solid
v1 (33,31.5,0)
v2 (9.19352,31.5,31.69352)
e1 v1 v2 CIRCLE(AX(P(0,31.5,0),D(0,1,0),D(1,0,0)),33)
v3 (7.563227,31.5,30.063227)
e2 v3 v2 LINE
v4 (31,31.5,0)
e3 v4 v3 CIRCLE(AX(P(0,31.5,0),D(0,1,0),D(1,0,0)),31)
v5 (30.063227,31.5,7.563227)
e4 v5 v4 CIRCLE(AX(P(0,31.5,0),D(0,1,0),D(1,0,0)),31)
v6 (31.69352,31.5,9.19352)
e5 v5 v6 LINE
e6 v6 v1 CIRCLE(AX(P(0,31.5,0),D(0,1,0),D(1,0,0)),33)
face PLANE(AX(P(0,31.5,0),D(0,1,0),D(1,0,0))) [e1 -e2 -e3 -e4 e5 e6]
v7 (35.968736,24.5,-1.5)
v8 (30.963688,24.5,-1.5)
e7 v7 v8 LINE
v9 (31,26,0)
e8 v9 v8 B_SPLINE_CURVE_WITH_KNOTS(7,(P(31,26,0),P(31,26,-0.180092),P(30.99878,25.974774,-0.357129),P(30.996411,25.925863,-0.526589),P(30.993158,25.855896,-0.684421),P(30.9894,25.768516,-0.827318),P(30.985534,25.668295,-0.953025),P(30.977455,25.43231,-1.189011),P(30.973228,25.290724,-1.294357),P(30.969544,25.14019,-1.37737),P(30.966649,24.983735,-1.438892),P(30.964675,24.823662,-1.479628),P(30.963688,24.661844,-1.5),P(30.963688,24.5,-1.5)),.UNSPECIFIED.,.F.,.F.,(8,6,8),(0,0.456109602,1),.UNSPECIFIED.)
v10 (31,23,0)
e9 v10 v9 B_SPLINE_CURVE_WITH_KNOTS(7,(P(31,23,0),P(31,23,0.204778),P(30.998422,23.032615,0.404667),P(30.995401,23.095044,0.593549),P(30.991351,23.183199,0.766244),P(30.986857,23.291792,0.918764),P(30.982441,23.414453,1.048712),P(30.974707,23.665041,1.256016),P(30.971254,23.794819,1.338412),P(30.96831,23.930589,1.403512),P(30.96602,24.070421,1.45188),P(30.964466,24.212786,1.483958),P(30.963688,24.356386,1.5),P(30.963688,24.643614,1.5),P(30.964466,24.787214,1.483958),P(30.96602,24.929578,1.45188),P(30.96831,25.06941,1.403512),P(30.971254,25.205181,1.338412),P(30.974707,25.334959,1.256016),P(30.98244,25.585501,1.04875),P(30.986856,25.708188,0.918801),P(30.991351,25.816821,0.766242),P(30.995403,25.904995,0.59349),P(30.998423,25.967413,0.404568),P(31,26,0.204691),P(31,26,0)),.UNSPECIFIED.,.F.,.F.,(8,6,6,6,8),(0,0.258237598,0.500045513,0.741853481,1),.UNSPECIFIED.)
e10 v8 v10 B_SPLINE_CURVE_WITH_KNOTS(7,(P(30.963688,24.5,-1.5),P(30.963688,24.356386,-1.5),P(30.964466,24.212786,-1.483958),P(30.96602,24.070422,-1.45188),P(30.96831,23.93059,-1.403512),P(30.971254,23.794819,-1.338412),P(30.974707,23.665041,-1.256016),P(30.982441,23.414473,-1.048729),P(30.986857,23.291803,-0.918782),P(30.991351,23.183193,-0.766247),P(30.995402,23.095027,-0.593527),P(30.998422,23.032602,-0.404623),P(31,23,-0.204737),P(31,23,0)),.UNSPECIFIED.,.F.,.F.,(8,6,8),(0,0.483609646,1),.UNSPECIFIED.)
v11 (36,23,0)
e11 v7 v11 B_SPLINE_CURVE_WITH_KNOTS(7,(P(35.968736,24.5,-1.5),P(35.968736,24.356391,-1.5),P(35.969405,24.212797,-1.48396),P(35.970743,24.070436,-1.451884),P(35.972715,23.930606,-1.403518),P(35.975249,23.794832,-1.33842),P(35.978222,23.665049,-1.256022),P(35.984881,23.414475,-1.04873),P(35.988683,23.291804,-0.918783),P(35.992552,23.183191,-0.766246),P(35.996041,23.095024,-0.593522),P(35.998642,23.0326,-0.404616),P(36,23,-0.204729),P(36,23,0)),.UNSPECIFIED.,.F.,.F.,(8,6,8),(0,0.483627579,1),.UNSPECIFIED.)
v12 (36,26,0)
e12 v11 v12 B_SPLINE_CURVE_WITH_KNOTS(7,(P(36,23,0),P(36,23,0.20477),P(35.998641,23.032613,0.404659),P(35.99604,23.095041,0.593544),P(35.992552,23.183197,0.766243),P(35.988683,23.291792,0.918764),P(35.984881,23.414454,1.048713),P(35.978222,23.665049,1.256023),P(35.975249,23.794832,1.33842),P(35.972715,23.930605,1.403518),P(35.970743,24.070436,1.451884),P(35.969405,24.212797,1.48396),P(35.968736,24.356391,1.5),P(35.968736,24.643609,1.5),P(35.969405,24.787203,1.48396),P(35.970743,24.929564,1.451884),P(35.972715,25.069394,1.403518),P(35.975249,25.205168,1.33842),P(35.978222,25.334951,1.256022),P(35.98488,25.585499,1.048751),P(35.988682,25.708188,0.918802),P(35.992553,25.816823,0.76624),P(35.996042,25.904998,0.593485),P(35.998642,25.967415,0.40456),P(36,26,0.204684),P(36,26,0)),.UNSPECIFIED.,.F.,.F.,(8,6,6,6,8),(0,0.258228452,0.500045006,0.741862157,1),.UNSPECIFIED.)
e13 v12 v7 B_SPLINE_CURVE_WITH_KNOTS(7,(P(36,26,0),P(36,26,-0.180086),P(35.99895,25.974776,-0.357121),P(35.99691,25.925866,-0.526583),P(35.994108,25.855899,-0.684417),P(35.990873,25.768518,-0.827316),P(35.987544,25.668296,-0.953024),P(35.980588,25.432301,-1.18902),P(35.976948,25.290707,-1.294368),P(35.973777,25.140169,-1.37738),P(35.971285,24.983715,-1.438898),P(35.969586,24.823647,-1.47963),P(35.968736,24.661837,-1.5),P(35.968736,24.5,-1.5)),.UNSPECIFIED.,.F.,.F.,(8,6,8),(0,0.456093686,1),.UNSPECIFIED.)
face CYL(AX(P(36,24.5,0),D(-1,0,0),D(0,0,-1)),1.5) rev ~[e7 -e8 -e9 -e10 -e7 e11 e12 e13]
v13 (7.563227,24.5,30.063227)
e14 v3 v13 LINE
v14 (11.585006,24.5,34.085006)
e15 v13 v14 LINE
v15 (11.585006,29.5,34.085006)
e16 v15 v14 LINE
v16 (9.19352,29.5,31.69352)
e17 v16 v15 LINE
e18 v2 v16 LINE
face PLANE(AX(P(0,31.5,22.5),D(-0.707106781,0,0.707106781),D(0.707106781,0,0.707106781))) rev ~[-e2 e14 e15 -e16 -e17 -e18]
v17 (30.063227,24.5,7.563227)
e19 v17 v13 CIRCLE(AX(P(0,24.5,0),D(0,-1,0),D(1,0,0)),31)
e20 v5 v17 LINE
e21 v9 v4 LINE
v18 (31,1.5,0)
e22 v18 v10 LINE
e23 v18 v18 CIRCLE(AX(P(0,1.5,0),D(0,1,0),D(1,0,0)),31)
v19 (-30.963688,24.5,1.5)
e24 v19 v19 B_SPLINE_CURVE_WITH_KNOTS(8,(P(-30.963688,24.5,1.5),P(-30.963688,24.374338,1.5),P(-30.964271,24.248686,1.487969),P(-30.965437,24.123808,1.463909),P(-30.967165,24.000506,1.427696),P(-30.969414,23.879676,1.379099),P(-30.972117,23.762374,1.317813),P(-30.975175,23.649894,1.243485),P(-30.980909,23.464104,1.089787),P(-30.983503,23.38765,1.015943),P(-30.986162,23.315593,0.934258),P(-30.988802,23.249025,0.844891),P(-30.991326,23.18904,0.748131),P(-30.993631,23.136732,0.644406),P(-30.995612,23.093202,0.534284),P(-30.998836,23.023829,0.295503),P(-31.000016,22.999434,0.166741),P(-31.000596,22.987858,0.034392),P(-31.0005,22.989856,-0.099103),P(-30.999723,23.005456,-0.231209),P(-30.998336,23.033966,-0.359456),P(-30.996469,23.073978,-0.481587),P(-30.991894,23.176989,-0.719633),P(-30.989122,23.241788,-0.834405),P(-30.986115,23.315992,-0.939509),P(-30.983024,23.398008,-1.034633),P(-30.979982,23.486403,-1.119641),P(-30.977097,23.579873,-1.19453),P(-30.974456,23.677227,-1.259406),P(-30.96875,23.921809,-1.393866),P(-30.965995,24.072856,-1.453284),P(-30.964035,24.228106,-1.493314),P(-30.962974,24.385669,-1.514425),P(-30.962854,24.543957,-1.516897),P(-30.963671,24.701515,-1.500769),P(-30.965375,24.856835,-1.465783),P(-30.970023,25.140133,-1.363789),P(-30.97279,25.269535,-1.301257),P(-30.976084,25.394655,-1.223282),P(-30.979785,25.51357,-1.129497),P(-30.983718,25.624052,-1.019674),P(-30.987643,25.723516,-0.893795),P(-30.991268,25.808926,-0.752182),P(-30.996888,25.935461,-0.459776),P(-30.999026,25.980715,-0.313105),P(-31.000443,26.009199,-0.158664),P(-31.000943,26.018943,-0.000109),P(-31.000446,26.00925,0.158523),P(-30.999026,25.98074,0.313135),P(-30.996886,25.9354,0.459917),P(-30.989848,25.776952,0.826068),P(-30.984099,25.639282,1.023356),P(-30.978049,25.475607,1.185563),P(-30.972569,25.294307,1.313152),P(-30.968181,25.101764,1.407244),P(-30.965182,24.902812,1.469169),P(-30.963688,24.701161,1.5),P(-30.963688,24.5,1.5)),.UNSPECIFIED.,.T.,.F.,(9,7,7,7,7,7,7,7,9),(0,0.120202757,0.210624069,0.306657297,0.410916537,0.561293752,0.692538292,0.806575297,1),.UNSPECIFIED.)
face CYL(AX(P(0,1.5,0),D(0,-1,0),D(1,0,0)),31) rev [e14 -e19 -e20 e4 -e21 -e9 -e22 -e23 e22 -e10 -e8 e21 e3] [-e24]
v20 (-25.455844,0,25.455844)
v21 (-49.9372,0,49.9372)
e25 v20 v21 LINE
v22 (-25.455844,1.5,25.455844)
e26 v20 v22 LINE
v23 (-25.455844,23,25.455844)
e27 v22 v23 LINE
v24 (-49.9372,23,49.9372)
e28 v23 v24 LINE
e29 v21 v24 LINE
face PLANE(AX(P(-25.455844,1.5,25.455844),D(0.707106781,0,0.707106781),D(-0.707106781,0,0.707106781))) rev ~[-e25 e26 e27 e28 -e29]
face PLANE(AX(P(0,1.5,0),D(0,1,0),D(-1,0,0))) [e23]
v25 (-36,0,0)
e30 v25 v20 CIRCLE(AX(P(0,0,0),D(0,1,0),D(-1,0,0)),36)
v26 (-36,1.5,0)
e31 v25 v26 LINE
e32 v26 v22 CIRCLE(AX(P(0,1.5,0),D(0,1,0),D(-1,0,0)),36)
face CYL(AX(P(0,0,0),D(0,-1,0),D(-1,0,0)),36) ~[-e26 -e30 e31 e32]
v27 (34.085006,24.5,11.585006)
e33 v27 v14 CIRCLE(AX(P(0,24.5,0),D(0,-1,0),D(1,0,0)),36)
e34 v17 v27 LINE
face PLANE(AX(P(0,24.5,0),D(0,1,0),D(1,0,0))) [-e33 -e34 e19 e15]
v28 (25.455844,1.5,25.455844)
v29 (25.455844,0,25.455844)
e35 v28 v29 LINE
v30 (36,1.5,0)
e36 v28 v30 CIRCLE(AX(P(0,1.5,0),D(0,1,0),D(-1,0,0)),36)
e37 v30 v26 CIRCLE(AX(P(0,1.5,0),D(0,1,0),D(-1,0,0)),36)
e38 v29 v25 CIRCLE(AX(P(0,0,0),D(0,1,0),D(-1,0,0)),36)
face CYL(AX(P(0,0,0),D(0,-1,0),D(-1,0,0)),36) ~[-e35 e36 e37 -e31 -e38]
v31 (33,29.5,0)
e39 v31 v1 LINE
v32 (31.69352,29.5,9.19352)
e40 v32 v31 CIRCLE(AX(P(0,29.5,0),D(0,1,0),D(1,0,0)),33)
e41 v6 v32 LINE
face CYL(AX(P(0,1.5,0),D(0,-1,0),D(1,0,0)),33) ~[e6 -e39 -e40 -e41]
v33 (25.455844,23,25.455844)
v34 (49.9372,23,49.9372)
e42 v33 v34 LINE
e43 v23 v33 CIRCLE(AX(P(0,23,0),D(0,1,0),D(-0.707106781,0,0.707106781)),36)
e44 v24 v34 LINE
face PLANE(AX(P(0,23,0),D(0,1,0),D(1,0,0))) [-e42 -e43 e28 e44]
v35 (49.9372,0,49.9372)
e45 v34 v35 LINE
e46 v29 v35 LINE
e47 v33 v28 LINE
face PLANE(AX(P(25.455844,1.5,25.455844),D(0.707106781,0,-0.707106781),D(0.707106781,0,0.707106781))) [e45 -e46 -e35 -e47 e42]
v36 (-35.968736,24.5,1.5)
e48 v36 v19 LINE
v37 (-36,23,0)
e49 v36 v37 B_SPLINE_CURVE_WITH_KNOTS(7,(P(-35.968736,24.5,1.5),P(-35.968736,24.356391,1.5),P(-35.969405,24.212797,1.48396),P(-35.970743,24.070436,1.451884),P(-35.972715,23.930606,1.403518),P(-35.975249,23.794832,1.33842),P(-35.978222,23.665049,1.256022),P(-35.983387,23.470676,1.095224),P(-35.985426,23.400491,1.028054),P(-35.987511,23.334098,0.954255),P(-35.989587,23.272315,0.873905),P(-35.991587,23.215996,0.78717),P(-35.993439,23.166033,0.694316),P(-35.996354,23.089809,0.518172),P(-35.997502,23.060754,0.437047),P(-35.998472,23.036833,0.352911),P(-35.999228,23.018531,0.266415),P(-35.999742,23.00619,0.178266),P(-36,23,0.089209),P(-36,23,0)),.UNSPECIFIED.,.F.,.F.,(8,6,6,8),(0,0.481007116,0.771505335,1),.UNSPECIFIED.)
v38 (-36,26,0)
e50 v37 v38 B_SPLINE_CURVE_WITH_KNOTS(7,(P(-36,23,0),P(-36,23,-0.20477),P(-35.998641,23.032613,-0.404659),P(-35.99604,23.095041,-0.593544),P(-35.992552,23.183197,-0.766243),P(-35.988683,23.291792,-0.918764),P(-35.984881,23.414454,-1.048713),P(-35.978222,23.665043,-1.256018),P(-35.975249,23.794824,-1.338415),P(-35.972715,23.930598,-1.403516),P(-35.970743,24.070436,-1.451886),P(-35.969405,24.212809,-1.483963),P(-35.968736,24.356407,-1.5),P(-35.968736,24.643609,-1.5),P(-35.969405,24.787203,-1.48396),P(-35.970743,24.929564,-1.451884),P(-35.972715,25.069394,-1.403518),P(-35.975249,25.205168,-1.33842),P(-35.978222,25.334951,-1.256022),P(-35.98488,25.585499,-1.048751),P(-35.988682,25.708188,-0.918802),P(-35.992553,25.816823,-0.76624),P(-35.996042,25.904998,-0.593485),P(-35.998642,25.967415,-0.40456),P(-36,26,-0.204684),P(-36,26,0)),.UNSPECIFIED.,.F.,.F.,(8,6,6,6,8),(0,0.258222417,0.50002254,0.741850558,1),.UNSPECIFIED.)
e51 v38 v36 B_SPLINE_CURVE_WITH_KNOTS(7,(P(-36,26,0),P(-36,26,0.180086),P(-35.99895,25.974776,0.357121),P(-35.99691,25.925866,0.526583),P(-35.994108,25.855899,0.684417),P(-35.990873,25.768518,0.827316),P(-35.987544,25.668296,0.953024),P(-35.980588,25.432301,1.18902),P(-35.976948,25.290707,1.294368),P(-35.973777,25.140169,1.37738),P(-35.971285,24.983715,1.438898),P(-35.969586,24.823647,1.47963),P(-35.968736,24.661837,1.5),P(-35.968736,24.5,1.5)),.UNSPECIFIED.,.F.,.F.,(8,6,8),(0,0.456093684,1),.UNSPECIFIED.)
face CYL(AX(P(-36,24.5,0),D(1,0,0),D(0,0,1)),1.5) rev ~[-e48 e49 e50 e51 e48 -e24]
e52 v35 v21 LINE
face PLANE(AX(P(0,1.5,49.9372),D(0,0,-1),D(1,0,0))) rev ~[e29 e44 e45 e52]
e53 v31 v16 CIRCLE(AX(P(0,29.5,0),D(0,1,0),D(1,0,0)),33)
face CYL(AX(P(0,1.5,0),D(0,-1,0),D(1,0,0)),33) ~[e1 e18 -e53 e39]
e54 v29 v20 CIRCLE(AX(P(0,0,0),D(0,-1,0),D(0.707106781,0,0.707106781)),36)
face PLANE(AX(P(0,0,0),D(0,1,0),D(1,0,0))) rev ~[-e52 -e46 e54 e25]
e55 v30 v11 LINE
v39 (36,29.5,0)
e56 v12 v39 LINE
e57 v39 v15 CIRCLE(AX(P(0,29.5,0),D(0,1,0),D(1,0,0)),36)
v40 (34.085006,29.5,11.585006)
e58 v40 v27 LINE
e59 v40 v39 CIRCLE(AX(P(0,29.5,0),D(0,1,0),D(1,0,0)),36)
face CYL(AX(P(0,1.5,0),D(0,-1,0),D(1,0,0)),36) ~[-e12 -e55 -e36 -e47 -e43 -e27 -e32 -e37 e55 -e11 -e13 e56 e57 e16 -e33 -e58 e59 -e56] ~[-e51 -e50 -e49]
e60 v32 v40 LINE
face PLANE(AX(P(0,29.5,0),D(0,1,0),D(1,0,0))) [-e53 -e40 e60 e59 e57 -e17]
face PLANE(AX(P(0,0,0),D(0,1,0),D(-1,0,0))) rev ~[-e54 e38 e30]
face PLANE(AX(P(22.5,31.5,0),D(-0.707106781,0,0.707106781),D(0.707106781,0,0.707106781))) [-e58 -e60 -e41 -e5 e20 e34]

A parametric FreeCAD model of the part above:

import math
import FreeCAD as App
import Part
import Sketcher
from FreeCAD import Vector
Q = App.Units.Quantity

doc = App.newDocument("Part")
body = doc.addObject("PartDesign::Body", "Body")

sketch1 = doc.addObject("Sketcher::SketchObject", "Sketch")
body.addObject(sketch1)
sketch1.AttachmentSupport = (doc.XZ_Plane, [""])
sketch1.MapMode = "FlatFace"
sketch1.addGeometry(Part.Circle(Vector(0, 0, 0), Vector(0, 0, 1), 36), False)
sketch1.addConstraint([
    Sketcher.Constraint("Coincident", 0, 3, -1, 1),
    Sketcher.Constraint("Diameter", 0, 72.0),
])
pad1 = doc.addObject("PartDesign::Pad", "Pad")
body.addObject(pad1)
pad1.Profile = sketch1
pad1.Length = 1.5
pad1.Reversed = True

sketch2 = doc.addObject("Sketcher::SketchObject", "Sketch001")
body.addObject(sketch2)
sketch2.AttachmentSupport = (doc.XZ_Plane, [""])
sketch2.MapMode = "FlatFace"
sketch2.AttachmentOffset = App.Placement(Vector(0, 0, -1.5), App.Rotation())
sketch2.addGeometry([
    Part.Circle(Vector(0, 0, 0), Vector(0, 0, 1), 33),
    Part.Circle(Vector(0, 0, 0), Vector(0, 0, 1), 31),
], False)
sketch2.addConstraint([
    Sketcher.Constraint("Coincident", 0, 3, -1, 1),
    Sketcher.Constraint("Coincident", 1, 3, -1, 1),
    Sketcher.Constraint("Diameter", 0, 66.0),
    Sketcher.Constraint("Diameter", 1, 62.0),
])
pad2 = doc.addObject("PartDesign::Pad", "Pad001")
body.addObject(pad2)
pad2.Profile = sketch2
pad2.Length = 30
pad2.Reversed = True

sketch3 = doc.addObject("Sketcher::SketchObject", "Sketch002")
body.addObject(sketch3)
sketch3.AttachmentSupport = (doc.XZ_Plane, [""])
sketch3.MapMode = "FlatFace"
sketch3.AttachmentOffset = App.Placement(Vector(0, 0, -1.5), App.Rotation())
sketch3.addGeometry([
    Part.Circle(Vector(0, 0, 0), Vector(0, 0, 1), 36),
    Part.Circle(Vector(0, 0, 0), Vector(0, 0, 1), 33),
], False)
sketch3.addConstraint([
    Sketcher.Constraint("Coincident", 0, 3, -1, 1),
    Sketcher.Constraint("Coincident", 1, 3, -1, 1),
    Sketcher.Constraint("Diameter", 0, 72.0),
    Sketcher.Constraint("Diameter", 1, 66.0),
])
pad3 = doc.addObject("PartDesign::Pad", "Pad002")
body.addObject(pad3)
pad3.Profile = sketch3
pad3.Length = 28
pad3.Reversed = True

sketch4 = doc.addObject("Sketcher::SketchObject", "Sketch003")
body.addObject(sketch4)
sketch4.AttachmentSupport = (doc.XZ_Plane, [""])
sketch4.MapMode = "FlatFace"
sketch4.AttachmentOffset = App.Placement(Vector(0, 0, -31.5), App.Rotation())
sketch4.addGeometry([
    Part.LineSegment(Vector(47, 24, 0), Vector(22, 0, 0)),
    Part.LineSegment(Vector(22, 0, 0), Vector(0, 22, 0)),
    Part.LineSegment(Vector(0, 22, 0), Vector(19, 42, 0)),
    Part.LineSegment(Vector(19, 42, 0), Vector(47, 24, 0)),
], False)
sketch4.addConstraint([
    Sketcher.Constraint("Coincident", 0, 2, 1, 1),
    Sketcher.Constraint("Coincident", 1, 2, 2, 1),
    Sketcher.Constraint("Coincident", 2, 2, 3, 1),
    Sketcher.Constraint("Coincident", 3, 2, 0, 1),
    Sketcher.Constraint("PointOnObject", 0, 2, -1),
    Sketcher.Constraint("PointOnObject", 1, 2, -2),
    Sketcher.Constraint("Perpendicular", 0, 1),
    Sketcher.Constraint("Perpendicular", 1, 2),
    Sketcher.Constraint("Angle", 2, Q("45 deg")),
    Sketcher.Constraint("DistanceX", -1, 1, 0, 2, 22.5),
    Sketcher.Constraint("DistanceX", 2, 2, 3, 2, 27.374),
    Sketcher.Constraint("Distance", 0, 34.0509),
])
pocket1 = doc.addObject("PartDesign::Pocket", "Pocket")
body.addObject(pocket1)
pocket1.Profile = sketch4
pocket1.Length = 7
pocket1.Reversed = True

sketch5 = doc.addObject("Sketcher::SketchObject", "Sketch004")
body.addObject(sketch5)
sketch5.AttachmentSupport = (doc.YZ_Plane, [""])
sketch5.MapMode = "FlatFace"
sketch5.AttachmentOffset = App.Placement(Vector(0, 0, -36), App.Rotation())
sketch5.addGeometry(Part.Circle(Vector(24.5, 0, 0), Vector(0, 0, 1), 1.5), False)
sketch5.addConstraint([
    Sketcher.Constraint("PointOnObject", 0, 3, -1),
    Sketcher.Constraint("Diameter", 0, 3.0),
    Sketcher.Constraint("DistanceX", -1, 1, 0, 3, 24.5),
])
doc.recompute()
hole = doc.addObject("PartDesign::Hole", "Hole")
body.addObject(hole)
hole.Profile = sketch5
hole.ThreadType = "None"
hole.Diameter = 3
hole.DepthType = "Dimension"
hole.Depth = 8
hole.DrillPoint = "Angled"
hole.DrillPointAngle = 118
hole.Reversed = True

sketch6 = doc.addObject("Sketcher::SketchObject", "Sketch005")
body.addObject(sketch6)
sketch6.AttachmentSupport = (doc.YZ_Plane, [""])
sketch6.MapMode = "FlatFace"
sketch6.AttachmentOffset = App.Placement(Vector(0, 0, 36), App.Rotation())
sketch6.addGeometry(Part.Circle(Vector(24.5, 0, 0), Vector(0, 0, 1), 1.5), False)
sketch6.addConstraint([
    Sketcher.Constraint("PointOnObject", 0, 3, -1),
    Sketcher.Constraint("Diameter", 0, 3.0),
    Sketcher.Constraint("DistanceX", -1, 1, 0, 3, 24.5),
])
doc.recompute()
hole2 = doc.addObject("PartDesign::Hole", "Hole001")
body.addObject(hole2)
hole2.Profile = sketch6
hole2.ThreadType = "None"
hole2.Diameter = 3
hole2.DepthType = "Dimension"
hole2.Depth = 8
hole2.DrillPoint = "Angled"
hole2.DrillPointAngle = 118

sketch7 = doc.addObject("Sketcher::SketchObject", "Sketch006")
body.addObject(sketch7)
sketch7.AttachmentSupport = (doc.XZ_Plane, [""])
sketch7.MapMode = "FlatFace"
sketch7.AttachmentOffset = App.Placement(Vector(0, 0, -1.5), App.Rotation())
sketch7.addGeometry([
    Part.ArcOfCircle(Part.Circle(Vector(0, 0, 0), Vector(0, 0, 1), 36), math.radians(45), math.radians(135)),
    Part.LineSegment(Vector(-25, 25, 0), Vector(-50, 50, 0)),
    Part.LineSegment(Vector(-50, 50, 0), Vector(50, 50, 0)),
    Part.LineSegment(Vector(50, 50, 0), Vector(25, 25, 0)),
], False)
sketch7.addConstraint([
    Sketcher.Constraint("Coincident", 0, 2, 1, 1),
    Sketcher.Constraint("Coincident", 1, 2, 2, 1),
    Sketcher.Constraint("Coincident", 2, 2, 3, 1),
    Sketcher.Constraint("Coincident", 3, 2, 0, 1),
    Sketcher.Constraint("Horizontal", 2),
    Sketcher.Constraint("Coincident", 0, 3, -1, 1),
    Sketcher.Constraint("Perpendicular", 1, 3),
    Sketcher.Constraint("Horizontal", 0, 2, 3, 2),
    Sketcher.Constraint("Equal", 1, 3),
    Sketcher.Constraint("Radius", 0, 36.0),
    Sketcher.Constraint("DistanceX", 2, 1, 2, 2, 99.8744),
    Sketcher.Constraint("DistanceX", 0, 2, 2, 2, 75.393),
])
pad4 = doc.addObject("PartDesign::Pad", "Pad003")
body.addObject(pad4)
pad4.Profile = sketch7
pad4.Type = "TwoLengths"
pad4.Length = 21.5
pad4.Length2 = 1.5
pad4.Reversed = True

doc.recompute()
